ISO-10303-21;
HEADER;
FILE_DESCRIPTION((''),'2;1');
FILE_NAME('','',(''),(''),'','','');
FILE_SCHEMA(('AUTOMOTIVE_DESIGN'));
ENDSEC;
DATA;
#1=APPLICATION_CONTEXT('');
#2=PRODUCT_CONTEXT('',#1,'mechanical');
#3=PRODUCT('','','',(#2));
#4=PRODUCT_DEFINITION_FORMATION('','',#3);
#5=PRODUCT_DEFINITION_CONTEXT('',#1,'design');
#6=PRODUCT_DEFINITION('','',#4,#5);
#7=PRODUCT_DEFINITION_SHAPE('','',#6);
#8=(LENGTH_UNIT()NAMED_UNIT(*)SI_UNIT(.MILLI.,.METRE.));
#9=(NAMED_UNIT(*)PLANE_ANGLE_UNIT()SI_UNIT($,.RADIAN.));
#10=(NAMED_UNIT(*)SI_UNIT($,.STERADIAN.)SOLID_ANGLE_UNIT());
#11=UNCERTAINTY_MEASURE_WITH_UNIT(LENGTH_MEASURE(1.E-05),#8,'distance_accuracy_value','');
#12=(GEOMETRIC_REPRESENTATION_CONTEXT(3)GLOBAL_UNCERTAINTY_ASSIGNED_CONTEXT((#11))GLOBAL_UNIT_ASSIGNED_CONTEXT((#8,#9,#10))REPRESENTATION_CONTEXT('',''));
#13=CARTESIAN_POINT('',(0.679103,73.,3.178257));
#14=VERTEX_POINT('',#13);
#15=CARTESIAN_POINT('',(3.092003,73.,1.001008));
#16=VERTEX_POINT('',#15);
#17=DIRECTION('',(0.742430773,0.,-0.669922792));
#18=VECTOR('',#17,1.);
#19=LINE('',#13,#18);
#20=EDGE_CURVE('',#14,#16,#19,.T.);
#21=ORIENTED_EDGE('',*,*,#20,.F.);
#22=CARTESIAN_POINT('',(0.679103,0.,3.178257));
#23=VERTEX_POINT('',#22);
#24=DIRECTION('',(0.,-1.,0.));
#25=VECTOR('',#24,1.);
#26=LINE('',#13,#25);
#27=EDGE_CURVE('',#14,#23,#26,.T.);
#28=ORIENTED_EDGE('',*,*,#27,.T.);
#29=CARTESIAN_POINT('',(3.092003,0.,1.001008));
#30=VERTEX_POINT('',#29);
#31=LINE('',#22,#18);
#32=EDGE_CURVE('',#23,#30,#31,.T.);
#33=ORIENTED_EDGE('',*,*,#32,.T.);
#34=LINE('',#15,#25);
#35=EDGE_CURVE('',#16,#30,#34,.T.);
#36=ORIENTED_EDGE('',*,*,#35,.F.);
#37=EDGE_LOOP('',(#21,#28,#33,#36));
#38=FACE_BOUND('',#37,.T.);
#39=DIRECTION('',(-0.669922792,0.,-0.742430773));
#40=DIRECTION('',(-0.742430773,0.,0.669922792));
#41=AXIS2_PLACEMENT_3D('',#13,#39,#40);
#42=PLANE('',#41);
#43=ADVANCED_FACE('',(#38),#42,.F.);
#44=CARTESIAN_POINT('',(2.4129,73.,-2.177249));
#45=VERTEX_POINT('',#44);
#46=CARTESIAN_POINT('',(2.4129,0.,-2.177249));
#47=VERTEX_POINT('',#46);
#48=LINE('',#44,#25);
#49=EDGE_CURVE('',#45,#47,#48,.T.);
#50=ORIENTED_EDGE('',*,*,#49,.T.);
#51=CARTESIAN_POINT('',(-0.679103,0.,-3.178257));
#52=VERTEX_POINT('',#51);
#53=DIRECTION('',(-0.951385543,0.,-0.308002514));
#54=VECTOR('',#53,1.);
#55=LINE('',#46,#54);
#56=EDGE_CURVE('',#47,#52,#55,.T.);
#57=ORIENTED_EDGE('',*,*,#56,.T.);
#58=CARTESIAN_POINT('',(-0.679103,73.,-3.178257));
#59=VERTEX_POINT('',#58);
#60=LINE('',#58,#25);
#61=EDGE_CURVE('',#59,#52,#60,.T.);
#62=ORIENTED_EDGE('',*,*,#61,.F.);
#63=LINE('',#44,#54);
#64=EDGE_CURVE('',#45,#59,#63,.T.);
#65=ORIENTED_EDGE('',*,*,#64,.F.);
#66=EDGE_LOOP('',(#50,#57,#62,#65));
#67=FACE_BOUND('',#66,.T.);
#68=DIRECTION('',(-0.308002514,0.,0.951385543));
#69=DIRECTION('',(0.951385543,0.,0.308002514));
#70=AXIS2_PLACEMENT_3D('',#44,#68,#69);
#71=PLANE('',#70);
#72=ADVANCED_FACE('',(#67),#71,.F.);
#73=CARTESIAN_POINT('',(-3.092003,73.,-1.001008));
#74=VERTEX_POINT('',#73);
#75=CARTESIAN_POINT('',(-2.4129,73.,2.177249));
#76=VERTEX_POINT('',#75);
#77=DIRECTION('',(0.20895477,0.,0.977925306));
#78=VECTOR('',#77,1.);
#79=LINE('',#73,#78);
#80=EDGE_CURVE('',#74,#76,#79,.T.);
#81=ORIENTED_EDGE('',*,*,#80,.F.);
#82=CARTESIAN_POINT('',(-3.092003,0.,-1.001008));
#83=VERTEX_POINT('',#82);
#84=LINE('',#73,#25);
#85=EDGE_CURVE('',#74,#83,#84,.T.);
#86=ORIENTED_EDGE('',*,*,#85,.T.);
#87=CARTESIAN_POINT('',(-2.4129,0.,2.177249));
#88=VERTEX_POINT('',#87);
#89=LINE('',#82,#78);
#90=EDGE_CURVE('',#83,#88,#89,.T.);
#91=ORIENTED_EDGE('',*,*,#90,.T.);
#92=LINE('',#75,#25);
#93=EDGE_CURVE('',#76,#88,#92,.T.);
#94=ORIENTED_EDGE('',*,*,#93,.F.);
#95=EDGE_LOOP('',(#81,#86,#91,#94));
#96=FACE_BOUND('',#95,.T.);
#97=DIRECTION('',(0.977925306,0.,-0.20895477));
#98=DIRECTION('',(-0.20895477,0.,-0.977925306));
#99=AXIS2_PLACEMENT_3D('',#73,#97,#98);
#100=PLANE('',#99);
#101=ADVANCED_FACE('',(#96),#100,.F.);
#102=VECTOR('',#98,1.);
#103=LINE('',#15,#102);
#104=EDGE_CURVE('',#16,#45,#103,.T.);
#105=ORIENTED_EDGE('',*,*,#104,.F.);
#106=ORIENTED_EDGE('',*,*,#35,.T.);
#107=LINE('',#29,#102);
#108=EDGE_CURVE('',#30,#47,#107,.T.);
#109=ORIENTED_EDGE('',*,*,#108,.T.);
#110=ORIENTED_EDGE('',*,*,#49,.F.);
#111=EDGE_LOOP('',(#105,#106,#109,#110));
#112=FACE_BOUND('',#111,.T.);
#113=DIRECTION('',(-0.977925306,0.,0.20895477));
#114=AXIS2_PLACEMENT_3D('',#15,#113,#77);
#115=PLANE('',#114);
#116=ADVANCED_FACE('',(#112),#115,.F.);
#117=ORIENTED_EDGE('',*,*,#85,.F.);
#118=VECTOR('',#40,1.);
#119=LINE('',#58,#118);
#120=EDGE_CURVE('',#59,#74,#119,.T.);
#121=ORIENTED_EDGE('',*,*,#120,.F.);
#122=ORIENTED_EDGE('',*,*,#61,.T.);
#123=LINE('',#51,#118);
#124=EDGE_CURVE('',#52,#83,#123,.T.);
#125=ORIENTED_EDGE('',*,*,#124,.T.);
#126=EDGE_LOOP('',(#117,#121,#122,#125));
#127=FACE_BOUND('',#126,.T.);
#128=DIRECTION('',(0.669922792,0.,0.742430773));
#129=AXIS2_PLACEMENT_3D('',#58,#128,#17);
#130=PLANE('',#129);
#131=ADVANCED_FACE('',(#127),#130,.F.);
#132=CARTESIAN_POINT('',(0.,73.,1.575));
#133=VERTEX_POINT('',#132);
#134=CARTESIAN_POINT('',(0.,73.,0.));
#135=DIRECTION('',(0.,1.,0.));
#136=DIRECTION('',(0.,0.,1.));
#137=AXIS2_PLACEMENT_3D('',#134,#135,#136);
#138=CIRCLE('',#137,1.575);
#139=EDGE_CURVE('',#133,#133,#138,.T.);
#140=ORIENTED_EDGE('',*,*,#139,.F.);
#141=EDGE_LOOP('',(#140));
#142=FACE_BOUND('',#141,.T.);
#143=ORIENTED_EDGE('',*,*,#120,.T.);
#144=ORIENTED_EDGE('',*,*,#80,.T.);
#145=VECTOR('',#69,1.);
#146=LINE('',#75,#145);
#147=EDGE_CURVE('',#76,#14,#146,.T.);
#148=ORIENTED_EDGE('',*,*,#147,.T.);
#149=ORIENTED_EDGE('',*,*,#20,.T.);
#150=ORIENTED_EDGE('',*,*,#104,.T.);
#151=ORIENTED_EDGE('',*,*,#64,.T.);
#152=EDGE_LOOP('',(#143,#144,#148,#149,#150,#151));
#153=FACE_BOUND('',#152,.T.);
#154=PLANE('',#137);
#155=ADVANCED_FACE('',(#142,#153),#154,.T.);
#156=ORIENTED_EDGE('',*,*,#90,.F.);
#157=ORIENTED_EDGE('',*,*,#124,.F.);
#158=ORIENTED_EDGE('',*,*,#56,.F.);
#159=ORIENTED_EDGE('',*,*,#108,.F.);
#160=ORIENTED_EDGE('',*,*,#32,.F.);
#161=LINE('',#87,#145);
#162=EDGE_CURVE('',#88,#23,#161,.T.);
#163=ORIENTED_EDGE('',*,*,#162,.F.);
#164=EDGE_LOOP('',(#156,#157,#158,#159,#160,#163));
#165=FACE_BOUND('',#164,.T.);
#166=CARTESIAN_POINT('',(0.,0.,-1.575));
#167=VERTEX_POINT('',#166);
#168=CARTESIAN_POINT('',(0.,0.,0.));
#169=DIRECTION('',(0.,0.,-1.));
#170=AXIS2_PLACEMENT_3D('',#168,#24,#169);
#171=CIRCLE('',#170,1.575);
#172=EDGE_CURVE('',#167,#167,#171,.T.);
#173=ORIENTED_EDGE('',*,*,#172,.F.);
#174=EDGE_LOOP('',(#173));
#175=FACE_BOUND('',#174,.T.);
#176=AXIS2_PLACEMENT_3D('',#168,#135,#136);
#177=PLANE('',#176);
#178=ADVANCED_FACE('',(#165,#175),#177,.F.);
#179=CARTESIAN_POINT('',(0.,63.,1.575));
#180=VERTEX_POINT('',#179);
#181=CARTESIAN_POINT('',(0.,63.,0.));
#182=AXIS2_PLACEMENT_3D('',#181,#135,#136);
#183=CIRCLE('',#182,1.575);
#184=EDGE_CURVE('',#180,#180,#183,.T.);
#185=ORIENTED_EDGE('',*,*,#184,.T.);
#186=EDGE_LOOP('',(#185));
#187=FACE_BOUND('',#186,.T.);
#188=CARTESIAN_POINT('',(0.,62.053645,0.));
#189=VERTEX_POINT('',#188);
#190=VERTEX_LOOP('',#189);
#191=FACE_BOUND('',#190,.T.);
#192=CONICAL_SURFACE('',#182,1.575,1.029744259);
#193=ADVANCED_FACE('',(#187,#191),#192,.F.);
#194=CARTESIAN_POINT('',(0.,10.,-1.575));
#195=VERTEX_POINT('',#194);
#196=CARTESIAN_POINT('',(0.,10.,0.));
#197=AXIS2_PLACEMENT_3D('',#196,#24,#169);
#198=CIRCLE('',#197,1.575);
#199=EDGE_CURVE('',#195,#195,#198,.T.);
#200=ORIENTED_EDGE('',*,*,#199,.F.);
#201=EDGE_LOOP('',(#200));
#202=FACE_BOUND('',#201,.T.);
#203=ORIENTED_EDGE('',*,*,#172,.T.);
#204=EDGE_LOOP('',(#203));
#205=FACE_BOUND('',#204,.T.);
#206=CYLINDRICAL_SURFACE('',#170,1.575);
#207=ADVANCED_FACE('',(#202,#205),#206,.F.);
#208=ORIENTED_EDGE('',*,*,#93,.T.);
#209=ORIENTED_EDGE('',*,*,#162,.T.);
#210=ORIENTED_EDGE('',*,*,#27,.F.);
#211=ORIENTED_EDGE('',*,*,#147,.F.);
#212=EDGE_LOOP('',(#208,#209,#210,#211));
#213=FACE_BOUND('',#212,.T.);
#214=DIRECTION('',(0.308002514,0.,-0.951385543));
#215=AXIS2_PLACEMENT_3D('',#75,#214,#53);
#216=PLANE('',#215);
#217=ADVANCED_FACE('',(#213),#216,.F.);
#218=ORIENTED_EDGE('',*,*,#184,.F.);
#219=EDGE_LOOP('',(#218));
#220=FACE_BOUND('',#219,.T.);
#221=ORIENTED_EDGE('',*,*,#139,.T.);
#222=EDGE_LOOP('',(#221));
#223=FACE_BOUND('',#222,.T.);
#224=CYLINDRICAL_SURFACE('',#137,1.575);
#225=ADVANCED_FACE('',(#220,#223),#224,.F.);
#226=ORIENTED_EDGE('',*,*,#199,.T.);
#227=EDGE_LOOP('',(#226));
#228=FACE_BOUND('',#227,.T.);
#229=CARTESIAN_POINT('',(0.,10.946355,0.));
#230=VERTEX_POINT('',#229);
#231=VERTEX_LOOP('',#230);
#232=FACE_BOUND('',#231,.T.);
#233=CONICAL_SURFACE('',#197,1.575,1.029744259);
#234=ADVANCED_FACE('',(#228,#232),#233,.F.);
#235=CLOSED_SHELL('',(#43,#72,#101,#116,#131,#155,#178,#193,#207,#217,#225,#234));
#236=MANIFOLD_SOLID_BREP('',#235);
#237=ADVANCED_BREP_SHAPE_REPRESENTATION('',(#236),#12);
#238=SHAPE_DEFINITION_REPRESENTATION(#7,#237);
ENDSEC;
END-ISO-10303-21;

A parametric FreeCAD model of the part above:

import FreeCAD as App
import Part
import Sketcher
Q = App.Units.Quantity

doc = App.newDocument("Part")
params = doc.addObject("Spreadsheet::Sheet", "Params")
for row, (alias, value) in enumerate([
    ("sketch1_length", "3.25 mm"),
    ("pad1_length", "73 mm"),
    ("sketch2_diameter", "3.15 mm"),
    ("hole_diameter", "3.15 mm"),
    ("hole_depth", "10 mm"),
    ("sketch3_diameter", "3.15 mm"),
    ("hole2_diameter", "3.15 mm"),
    ("hole2_depth", "10 mm"),
], start=1):
    params.set(f"A{row}", alias)
    params.set(f"B{row}", "=" + value)
    params.setAlias(f"B{row}", alias)

body = doc.addObject("PartDesign::Body", "Body")

# Sketch on XZ plane
sketch1 = body.newObject("Sketcher::SketchObject", "Sketch")
sketch1.AttachmentSupport = (doc.getObject("XZ_Plane"), [""])
sketch1.MapMode = "FlatFace"
sketch1.addGeometry([
    Part.LineSegment(App.Vector(3.092003, 1.001008, 0), App.Vector(2.4129, -2.177249, 0)),  # 0
    Part.LineSegment(App.Vector(2.4129, -2.177249, 0), App.Vector(-0.679103, -3.178257, 0)),  # 1
    Part.LineSegment(App.Vector(-0.679103, -3.178257, 0), App.Vector(-3.092003, -1.001008, 0)),  # 2
    Part.LineSegment(App.Vector(-3.092003, -1.001008, 0), App.Vector(-2.4129, 2.177249, 0)),  # 3
    Part.LineSegment(App.Vector(-2.4129, 2.177249, 0), App.Vector(0.679103, 3.178257, 0)),  # 4
    Part.LineSegment(App.Vector(0.679103, 3.178257, 0), App.Vector(3.092003, 1.001008, 0)),  # 5
], False)
sketch1.addConstraint([
    Sketcher.Constraint("Coincident", 0, 2, 1, 1),
    Sketcher.Constraint("Coincident", 1, 2, 2, 1),
    Sketcher.Constraint("Coincident", 2, 2, 3, 1),
    Sketcher.Constraint("Coincident", 3, 2, 4, 1),
    Sketcher.Constraint("Coincident", 4, 2, 5, 1),
    Sketcher.Constraint("Coincident", 5, 2, 0, 1),
    Sketcher.Constraint("Symmetric", 0, 2, 3, 2, -1, 1),
    Sketcher.Constraint("Symmetric", 1, 2, 4, 2, -1, 1),
    Sketcher.Constraint("Symmetric", 2, 2, 5, 2, -1, 1),
    Sketcher.Constraint("Equal", 0, 1),
    Sketcher.Constraint("Equal", 1, 2),
    Sketcher.Constraint("Distance", 0, Q("3.25 mm")),
    Sketcher.Constraint("DistanceX", -1, 1, 0, 2, Q("2.4129 mm")),
    Sketcher.Constraint("DistanceX", 2, 2, 1, 2, Q("2.4129 mm")),
    Sketcher.Constraint("DistanceY", 0, 2, 3, 2, Q("4.354498 mm")),
])
sketch1.setExpression("Constraints[11]", "Params.sketch1_length")
pad1 = body.newObject("PartDesign::Pad", "Pad")
pad1.Profile = sketch1
pad1.setExpression("Length", "Params.pad1_length")
pad1.Reversed = True

# Sketch on XZ plane
sketch2 = body.newObject("Sketcher::SketchObject", "Sketch001")
sketch2.AttachmentSupport = (doc.getObject("XZ_Plane"), [""])
sketch2.MapMode = "FlatFace"
sketch2.addGeometry(Part.Circle(App.Vector(0, 0, 0), App.Vector(0, 0, 1), 1.575), False)
sketch2.addConstraint([
    Sketcher.Constraint("Coincident", 0, 3, -1, 1),
    Sketcher.Constraint("Diameter", 0, Q("3.15 mm")),
])
sketch2.setExpression("Constraints[1]", "Params.sketch2_diameter")
doc.recompute()
hole = body.newObject("PartDesign::Hole", "Hole")
hole.Profile = sketch2
hole.ThreadType = "None"
hole.setExpression("Diameter", "Params.hole_diameter")
hole.DepthType = "Dimension"
hole.setExpression("Depth", "Params.hole_depth")
hole.DrillPoint = "Angled"
hole.DrillPointAngle = 118

# Sketch on XZ plane
sketch3 = body.newObject("Sketcher::SketchObject", "Sketch002")
sketch3.AttachmentSupport = (doc.getObject("XZ_Plane"), [""])
sketch3.MapMode = "FlatFace"
sketch3.AttachmentOffset = App.Placement(App.Vector(0, 0, -73), App.Rotation())
sketch3.addGeometry(Part.Circle(App.Vector(0, 0, 0), App.Vector(0, 0, 1), 1.575), False)
sketch3.addConstraint([
    Sketcher.Constraint("Coincident", 0, 3, -1, 1),
    Sketcher.Constraint("Diameter", 0, Q("3.15 mm")),
])
sketch3.setExpression("Constraints[1]", "Params.sketch3_diameter")
doc.recompute()
hole2 = body.newObject("PartDesign::Hole", "Hole001")
hole2.Profile = sketch3
hole2.ThreadType = "None"
hole2.setExpression("Diameter", "Params.hole2_diameter")
hole2.DepthType = "Dimension"
hole2.setExpression("Depth", "Params.hole2_depth")
hole2.DrillPoint = "Angled"
hole2.DrillPointAngle = 118
hole2.Reversed = True

doc.recompute()
